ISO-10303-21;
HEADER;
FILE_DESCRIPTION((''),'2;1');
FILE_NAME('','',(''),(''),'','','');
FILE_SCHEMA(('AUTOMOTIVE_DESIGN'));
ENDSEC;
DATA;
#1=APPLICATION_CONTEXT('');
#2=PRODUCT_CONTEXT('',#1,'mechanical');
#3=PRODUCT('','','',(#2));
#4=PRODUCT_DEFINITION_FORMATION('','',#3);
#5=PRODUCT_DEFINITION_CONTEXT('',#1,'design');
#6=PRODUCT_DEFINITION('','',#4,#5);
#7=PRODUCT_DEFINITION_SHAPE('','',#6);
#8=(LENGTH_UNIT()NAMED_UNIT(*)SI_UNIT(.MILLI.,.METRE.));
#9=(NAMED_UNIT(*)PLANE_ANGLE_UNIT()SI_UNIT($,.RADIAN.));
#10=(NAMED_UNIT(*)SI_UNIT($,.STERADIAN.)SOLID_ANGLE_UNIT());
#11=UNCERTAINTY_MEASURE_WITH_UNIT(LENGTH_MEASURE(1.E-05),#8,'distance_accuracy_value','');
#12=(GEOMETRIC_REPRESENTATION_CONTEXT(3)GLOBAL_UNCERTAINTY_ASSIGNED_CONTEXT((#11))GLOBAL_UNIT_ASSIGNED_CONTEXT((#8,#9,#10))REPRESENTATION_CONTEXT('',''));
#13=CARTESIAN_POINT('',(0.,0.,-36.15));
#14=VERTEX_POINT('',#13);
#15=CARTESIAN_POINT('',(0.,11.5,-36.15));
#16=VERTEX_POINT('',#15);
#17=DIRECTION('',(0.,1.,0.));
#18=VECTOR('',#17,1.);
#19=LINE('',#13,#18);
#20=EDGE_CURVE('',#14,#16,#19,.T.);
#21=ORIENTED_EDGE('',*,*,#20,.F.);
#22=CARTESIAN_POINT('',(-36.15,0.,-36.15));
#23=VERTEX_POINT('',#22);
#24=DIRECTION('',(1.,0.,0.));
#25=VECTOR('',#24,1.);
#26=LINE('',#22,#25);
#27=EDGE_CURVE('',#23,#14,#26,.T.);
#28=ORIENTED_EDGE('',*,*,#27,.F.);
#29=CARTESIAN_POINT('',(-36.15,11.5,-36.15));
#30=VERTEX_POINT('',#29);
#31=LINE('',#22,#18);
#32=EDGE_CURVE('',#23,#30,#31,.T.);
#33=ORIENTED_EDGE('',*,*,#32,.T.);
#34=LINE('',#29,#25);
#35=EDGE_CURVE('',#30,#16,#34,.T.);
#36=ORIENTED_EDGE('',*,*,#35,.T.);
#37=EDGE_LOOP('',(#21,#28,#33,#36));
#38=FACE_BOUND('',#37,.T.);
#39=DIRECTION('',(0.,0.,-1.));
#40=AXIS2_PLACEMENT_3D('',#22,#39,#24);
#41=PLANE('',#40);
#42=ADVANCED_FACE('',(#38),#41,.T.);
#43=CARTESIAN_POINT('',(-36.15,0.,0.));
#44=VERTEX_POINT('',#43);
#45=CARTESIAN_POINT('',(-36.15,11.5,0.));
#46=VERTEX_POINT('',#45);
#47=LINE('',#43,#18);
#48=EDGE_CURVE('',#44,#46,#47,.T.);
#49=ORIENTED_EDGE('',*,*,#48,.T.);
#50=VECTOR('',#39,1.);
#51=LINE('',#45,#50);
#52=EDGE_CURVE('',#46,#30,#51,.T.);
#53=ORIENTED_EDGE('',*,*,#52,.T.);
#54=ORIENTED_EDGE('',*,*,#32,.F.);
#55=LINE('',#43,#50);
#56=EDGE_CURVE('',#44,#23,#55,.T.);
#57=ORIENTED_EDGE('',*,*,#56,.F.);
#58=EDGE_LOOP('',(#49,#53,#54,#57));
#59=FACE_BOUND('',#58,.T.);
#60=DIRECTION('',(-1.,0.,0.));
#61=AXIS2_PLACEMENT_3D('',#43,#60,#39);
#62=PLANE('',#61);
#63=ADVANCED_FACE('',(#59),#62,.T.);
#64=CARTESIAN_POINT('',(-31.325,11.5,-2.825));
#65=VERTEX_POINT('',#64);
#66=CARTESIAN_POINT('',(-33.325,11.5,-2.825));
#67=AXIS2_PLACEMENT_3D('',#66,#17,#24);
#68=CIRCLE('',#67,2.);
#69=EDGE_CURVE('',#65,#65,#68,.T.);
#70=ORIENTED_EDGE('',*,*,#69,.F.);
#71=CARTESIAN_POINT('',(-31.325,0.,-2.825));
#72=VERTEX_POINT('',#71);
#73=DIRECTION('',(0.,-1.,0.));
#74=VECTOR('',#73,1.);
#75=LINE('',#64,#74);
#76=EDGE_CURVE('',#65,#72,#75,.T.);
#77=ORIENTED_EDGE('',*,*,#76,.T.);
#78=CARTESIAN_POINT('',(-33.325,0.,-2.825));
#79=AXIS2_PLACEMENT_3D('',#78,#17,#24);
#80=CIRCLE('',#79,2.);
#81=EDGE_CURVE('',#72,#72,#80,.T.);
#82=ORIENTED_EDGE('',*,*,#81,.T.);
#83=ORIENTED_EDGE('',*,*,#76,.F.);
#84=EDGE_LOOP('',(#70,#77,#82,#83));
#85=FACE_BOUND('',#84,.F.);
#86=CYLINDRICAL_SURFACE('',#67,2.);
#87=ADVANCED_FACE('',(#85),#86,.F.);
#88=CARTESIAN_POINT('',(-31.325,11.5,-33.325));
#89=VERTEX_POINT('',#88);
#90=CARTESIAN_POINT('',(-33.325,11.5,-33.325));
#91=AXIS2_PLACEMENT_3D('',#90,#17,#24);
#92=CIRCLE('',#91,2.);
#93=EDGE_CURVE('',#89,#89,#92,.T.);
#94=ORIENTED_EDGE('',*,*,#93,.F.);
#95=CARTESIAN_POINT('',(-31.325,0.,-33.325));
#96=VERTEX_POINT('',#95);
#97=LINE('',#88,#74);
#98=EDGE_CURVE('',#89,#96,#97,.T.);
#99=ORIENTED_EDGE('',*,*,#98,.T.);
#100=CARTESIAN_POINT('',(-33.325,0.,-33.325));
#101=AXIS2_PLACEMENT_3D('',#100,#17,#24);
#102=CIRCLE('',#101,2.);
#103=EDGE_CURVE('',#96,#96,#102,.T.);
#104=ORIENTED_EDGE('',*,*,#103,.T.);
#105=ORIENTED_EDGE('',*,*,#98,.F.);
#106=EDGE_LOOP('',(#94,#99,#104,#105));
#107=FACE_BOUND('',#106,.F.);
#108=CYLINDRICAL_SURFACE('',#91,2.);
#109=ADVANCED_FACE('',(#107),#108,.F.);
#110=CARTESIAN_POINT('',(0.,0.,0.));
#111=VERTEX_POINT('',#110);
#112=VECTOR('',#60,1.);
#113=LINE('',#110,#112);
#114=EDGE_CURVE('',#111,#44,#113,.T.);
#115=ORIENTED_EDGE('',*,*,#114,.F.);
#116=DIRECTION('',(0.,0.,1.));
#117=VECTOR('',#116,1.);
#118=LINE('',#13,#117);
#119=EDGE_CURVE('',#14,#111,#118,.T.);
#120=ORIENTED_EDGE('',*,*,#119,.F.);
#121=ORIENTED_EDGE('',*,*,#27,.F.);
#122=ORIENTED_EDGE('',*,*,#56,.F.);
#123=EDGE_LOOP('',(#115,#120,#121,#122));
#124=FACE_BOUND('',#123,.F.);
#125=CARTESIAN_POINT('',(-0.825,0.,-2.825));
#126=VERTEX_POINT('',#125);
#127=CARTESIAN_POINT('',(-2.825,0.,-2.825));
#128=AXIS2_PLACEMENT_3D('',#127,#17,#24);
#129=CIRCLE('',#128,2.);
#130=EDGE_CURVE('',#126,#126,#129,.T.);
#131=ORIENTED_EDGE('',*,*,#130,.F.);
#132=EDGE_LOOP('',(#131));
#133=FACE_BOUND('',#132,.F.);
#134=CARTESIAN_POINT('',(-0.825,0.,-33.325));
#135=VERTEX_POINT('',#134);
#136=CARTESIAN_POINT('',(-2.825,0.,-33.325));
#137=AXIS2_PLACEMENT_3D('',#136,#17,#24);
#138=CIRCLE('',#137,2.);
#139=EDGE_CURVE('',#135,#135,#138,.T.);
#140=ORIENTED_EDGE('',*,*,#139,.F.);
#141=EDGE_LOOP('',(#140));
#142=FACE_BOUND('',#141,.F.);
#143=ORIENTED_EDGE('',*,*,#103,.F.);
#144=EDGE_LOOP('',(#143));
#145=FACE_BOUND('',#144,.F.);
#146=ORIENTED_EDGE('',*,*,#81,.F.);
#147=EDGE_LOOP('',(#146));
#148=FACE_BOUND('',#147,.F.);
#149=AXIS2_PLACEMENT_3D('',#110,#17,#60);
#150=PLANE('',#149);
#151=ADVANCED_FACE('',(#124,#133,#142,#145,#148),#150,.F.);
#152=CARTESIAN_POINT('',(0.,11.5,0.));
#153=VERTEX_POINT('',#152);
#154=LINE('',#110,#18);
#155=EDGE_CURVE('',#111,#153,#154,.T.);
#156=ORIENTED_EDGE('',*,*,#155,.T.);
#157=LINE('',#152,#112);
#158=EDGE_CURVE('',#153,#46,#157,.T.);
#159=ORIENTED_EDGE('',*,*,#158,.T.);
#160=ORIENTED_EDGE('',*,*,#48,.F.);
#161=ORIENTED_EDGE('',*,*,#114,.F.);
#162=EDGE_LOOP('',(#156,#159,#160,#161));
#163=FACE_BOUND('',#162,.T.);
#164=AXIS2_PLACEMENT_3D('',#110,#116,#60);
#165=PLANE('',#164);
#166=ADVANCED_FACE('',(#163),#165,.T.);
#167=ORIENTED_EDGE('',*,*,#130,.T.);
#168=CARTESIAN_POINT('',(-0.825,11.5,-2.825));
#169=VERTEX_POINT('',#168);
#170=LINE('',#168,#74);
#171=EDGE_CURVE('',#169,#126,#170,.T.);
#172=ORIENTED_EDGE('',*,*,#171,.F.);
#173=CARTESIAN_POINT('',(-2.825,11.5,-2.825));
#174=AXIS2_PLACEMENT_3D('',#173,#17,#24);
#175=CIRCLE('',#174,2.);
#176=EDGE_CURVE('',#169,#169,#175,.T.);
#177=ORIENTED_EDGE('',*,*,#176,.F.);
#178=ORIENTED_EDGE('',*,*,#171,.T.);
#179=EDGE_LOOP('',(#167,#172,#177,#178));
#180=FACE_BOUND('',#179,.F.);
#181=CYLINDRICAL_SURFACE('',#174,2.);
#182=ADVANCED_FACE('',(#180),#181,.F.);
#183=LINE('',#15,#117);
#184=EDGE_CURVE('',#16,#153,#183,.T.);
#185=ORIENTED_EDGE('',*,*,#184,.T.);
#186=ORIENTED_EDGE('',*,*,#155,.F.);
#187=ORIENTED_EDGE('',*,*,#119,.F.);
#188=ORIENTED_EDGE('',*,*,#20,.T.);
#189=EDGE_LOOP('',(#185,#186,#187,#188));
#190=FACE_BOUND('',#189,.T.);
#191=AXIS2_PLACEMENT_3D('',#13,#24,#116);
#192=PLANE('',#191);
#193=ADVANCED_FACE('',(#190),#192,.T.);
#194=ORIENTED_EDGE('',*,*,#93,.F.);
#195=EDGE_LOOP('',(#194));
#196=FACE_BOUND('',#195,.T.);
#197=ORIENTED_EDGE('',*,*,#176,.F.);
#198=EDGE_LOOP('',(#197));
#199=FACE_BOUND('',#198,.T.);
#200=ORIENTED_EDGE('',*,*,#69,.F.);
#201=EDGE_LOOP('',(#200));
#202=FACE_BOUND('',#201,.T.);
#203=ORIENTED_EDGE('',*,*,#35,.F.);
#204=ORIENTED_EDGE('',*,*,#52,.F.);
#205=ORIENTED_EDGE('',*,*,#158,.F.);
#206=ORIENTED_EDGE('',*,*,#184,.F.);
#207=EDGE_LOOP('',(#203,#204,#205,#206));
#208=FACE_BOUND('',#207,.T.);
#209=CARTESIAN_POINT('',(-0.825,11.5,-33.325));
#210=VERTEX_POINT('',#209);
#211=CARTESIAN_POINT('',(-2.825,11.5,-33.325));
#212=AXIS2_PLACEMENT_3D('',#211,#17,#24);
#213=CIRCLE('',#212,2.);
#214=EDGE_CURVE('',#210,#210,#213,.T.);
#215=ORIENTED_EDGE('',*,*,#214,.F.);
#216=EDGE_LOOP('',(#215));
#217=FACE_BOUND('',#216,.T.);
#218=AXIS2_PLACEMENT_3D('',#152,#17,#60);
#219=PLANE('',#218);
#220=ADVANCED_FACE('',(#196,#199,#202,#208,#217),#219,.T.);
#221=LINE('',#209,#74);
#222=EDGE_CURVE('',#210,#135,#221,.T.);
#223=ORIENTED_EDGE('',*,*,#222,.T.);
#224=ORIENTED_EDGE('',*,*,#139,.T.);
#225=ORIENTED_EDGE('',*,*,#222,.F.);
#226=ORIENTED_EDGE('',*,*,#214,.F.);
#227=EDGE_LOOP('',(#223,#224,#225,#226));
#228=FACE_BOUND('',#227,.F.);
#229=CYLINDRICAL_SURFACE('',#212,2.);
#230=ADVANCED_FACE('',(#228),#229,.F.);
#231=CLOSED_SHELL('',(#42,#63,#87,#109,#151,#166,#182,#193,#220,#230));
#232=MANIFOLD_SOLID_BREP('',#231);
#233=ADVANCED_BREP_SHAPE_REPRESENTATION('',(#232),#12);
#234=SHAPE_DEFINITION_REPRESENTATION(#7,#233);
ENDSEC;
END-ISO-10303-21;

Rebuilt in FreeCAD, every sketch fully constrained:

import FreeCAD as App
import Part
import Sketcher

V = App.Vector


def add_polygon(sketch, points):
    """Adds a closed chain of lines whose ends are joined by coincident constraints."""
    first, n = sketch.GeometryCount, len(points)
    for a, b in zip(points, points[1:] + points[:1]):
        sketch.addGeometry(Part.LineSegment(App.Vector(*a, 0), App.Vector(*b, 0)), False)
    for i in range(n):
        sketch.addConstraint(Sketcher.Constraint("Coincident", first + i, 2, first + (i + 1) % n, 1))

doc = App.newDocument("Part")
body = doc.addObject("PartDesign::Body", "Body")

sketch1 = body.newObject("Sketcher::SketchObject", "Sketch")
sketch1.AttachmentSupport = (doc.getObject("XZ_Plane"), [""])
sketch1.MapMode = "FlatFace"
add_polygon(sketch1, [(-36, 0), (0, 0), (0, -36), (-36, -36)])
sketch1.addConstraint([
    Sketcher.Constraint("Horizontal", 0),
    Sketcher.Constraint("Vertical", 1),
    Sketcher.Constraint("Horizontal", 2),
    Sketcher.Constraint("Vertical", 3),
    Sketcher.Constraint("Coincident", 0, 2, -1, 1),
    Sketcher.Constraint("Equal", 2, 1),
    Sketcher.Constraint("DistanceX", 0, 1, 0, 2, 36.15),
])
pad1 = body.newObject("PartDesign::Pad", "Pad")
pad1.Profile = sketch1
pad1.Length = 11.5
pad1.Reversed = True

sketch2 = body.newObject("Sketcher::SketchObject", "Sketch001")
sketch2.AttachmentSupport = (doc.getObject("XZ_Plane"), [""])
sketch2.MapMode = "FlatFace"
sketch2.AttachmentOffset = App.Placement(V(0, 0, -11.5), App.Rotation())
sketch2.addGeometry([
    Part.Circle(V(-33.3, -33.3, 0), V(0, 0, 1), 2),
    Part.Circle(V(-33.3, -2.8, 0), V(0, 0, 1), 2),
    Part.Circle(V(-2.8, -2.8, 0), V(0, 0, 1), 2),
    Part.Circle(V(-2.8, -33.3, 0), V(0, 0, 1), 2),
], False)
sketch2.addConstraint([
    Sketcher.Constraint("Equal", 0, 1),
    Sketcher.Constraint("Equal", 1, 2),
    Sketcher.Constraint("Equal", 2, 3),
    Sketcher.Constraint("Horizontal", 1, 3, 2, 3),
    Sketcher.Constraint("Horizontal", 0, 3, 3, 3),
    Sketcher.Constraint("Vertical", 0, 3, 1, 3),
    Sketcher.Constraint("Vertical", 2, 3, 3, 3),
    Sketcher.Constraint("Diameter", 0, 4.0),
    Sketcher.Constraint("DistanceY", 0, 3, 1, 3, 30.5),
    Sketcher.Constraint("DistanceX", 1, 3, 2, 3, 30.5),
    Sketcher.Constraint("DistanceX", 0, 3, -1, 1, 33.325),
    Sketcher.Constraint("DistanceY", 0, 3, -1, 1, 33.325),
])
pocket1 = body.newObject("PartDesign::Pocket", "Pocket")
pocket1.Profile = sketch2
pocket1.Length = 11.5
pocket1.Reversed = True

doc.recompute()
